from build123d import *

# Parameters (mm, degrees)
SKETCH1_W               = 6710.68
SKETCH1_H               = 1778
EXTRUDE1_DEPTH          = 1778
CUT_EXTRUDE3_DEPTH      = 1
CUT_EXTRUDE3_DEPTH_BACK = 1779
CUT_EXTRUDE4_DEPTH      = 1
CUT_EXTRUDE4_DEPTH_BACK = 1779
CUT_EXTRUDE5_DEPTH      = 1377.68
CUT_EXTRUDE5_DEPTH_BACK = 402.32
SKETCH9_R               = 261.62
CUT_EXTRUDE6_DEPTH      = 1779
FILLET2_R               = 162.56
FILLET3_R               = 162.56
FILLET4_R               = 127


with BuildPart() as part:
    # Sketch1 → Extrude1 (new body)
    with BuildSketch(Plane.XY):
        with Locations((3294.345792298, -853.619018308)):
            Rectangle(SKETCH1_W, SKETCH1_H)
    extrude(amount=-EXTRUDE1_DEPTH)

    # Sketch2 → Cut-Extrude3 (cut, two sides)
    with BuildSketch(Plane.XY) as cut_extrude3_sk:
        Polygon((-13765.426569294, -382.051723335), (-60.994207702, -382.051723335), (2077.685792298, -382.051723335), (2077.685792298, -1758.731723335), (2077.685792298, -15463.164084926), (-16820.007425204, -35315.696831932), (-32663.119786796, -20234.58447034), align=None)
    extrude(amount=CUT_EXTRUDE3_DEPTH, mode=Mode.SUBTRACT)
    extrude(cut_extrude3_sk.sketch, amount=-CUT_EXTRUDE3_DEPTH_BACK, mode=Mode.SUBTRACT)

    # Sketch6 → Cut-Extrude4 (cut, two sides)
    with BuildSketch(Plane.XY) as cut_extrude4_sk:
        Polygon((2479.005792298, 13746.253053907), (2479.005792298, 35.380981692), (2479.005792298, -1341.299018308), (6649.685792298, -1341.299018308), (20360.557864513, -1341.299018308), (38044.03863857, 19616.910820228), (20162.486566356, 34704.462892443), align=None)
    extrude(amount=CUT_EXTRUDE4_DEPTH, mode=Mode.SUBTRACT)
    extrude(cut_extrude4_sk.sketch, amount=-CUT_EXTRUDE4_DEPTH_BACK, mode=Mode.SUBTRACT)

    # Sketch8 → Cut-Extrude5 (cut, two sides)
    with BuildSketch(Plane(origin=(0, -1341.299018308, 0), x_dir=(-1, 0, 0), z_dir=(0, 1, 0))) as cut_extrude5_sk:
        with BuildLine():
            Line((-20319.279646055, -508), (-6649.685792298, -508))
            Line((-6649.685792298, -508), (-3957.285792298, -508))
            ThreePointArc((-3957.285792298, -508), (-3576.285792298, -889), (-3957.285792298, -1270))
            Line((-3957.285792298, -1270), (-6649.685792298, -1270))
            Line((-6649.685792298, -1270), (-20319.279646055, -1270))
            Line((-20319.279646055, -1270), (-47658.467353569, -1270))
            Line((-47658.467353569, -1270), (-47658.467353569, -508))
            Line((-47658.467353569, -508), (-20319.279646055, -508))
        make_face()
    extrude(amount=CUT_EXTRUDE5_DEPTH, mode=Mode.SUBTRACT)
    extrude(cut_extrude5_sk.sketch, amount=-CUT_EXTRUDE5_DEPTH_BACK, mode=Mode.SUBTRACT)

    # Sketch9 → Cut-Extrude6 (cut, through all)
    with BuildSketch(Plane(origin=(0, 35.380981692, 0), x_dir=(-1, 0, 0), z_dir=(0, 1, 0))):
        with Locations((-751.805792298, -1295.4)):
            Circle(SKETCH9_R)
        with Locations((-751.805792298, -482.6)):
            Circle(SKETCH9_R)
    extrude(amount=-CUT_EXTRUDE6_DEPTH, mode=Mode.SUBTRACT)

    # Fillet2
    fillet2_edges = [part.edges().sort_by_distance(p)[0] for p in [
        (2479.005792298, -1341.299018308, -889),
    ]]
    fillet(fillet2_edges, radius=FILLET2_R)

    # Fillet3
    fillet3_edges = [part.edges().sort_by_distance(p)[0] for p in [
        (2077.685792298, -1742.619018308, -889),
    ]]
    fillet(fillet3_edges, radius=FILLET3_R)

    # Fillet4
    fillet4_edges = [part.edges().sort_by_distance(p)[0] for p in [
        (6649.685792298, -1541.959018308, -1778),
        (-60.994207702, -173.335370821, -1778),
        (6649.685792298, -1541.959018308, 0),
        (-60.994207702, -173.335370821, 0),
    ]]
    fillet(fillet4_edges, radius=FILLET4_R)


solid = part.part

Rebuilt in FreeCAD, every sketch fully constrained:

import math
import FreeCAD as App
import Part
import Sketcher

V = App.Vector
Q = App.Units.Quantity


def edges_at(feature, points):
    """Names of the edges that pass closest to the given points."""
    edges = feature.Shape.Edges
    near = lambda p: min(range(len(edges)), key=lambda i: edges[i].distToShape(Part.Vertex(*p))[0])
    return sorted({f"Edge{near(p) + 1}" for p in points})

doc = App.newDocument("Part")
body = doc.addObject("PartDesign::Body", "Body")

# Sketch on XY plane
sketch1 = doc.addObject("Sketcher::SketchObject", "Sketch")
body.addObject(sketch1)
sketch1.AttachmentSupport = (doc.XY_Plane, [""])
sketch1.MapMode = "FlatFace"
sketch1.addGeometry([
    Part.LineSegment(V(-60.994208, 35.380982, 0), V(-60.994208, -1742.619018, 0)),
    Part.LineSegment(V(-60.994208, -1742.619018, 0), V(6649.685792, -1742.619018, 0)),
    Part.LineSegment(V(6649.685792, -1742.619018, 0), V(6649.685792, 35.380982, 0)),
    Part.LineSegment(V(6649.685792, 35.380982, 0), V(-60.994208, 35.380982, 0)),
], False)
sketch1.addConstraint([
    Sketcher.Constraint("Coincident", 0, 2, 1, 1),
    Sketcher.Constraint("Coincident", 1, 2, 2, 1),
    Sketcher.Constraint("Coincident", 2, 2, 3, 1),
    Sketcher.Constraint("Coincident", 3, 2, 0, 1),
    Sketcher.Constraint("Vertical", 0),
    Sketcher.Constraint("Horizontal", 1),
    Sketcher.Constraint("Vertical", 2),
    Sketcher.Constraint("Horizontal", 3),
    Sketcher.Constraint("DistanceY", 0, 2, 0, 1, Q("70 in")),
    Sketcher.Constraint("DistanceX", 1, 1, 1, 2, Q("264.2 in")),
    Sketcher.Constraint("DistanceY", 0, 2, -1, 1, 1742.619018),
    Sketcher.Constraint("DistanceX", 0, 2, -1, 1, 60.994208),
])
pad1 = doc.addObject("PartDesign::Pad", "Pad")
body.addObject(pad1)
pad1.Profile = sketch1
pad1.Length = Q("70 in")
pad1.Reversed = True

# Sketch on XY plane
sketch2 = doc.addObject("Sketcher::SketchObject", "Sketch001")
body.addObject(sketch2)
sketch2.AttachmentSupport = (doc.XY_Plane, [""])
sketch2.MapMode = "FlatFace"
sketch2.addGeometry([
    Part.LineSegment(V(2077.685792, -382.051723, 0), V(-13765.426569, -382.051723, 0)),  # 0
    Part.LineSegment(V(-13765.426569, -382.051723, 0), V(-32663.119787, -20234.58447, 0)),  # 1
    Part.LineSegment(V(-32663.119787, -20234.58447, 0), V(-16820.007425, -35315.696832, 0)),  # 2
    Part.LineSegment(V(-16820.007425, -35315.696832, 0), V(2077.685792, -15463.164085, 0)),  # 3
    Part.LineSegment(V(2077.685792, -15463.164085, 0), V(2077.685792, -382.051723, 0)),  # 4
], False)
sketch2.addConstraint([
    Sketcher.Constraint("Coincident", 0, 2, 1, 1),
    Sketcher.Constraint("Coincident", 1, 2, 2, 1),
    Sketcher.Constraint("Coincident", 2, 2, 3, 1),
    Sketcher.Constraint("Coincident", 3, 2, 4, 1),
    Sketcher.Constraint("Coincident", 4, 2, 0, 1),
    Sketcher.Constraint("Horizontal", 0),
    Sketcher.Constraint("Vertical", 4),
    Sketcher.Constraint("Perpendicular", 1, 2),
    Sketcher.Constraint("Perpendicular", 2, 3),
    Sketcher.Constraint("Equal", 1, 3),
    Sketcher.Constraint("DistanceX", 0, 2, 0, 1, 15843.112362),
    Sketcher.Constraint("DistanceY", 4, 1, 4, 2, 15081.112362),
    Sketcher.Constraint("DistanceX", 0, 2, -1, 1, 13765.426569),
    Sketcher.Constraint("DistanceY", 1, 2, -1, 1, 20234.58447),
    Sketcher.Constraint("DistanceY", 2, 2, 0, 2, 34933.645109),
])
pocket1 = doc.addObject("PartDesign::Pocket", "Pocket")
body.addObject(pocket1)
pocket1.Profile = sketch2
pocket1.Type = "ThroughAll"
pocket1.Midplane = True

# Sketch on XY plane
sketch3 = doc.addObject("Sketcher::SketchObject", "Sketch002")
body.addObject(sketch3)
sketch3.AttachmentSupport = (doc.XY_Plane, [""])
sketch3.MapMode = "FlatFace"
sketch3.addGeometry([
    Part.LineSegment(V(2479.005792, 13746.253054, 0), V(2479.005792, -1341.299018, 0)),  # 0
    Part.LineSegment(V(2479.005792, -1341.299018, 0), V(20360.557865, -1341.299018, 0)),  # 1
    Part.LineSegment(V(20360.557865, -1341.299018, 0), V(38044.038639, 19616.91082, 0)),  # 2
    Part.LineSegment(V(38044.038639, 19616.91082, 0), V(20162.486566, 34704.462892, 0)),  # 3
    Part.LineSegment(V(20162.486566, 34704.462892, 0), V(2479.005792, 13746.253054, 0)),  # 4
], False)
sketch3.addConstraint([
    Sketcher.Constraint("Coincident", 0, 2, 1, 1),
    Sketcher.Constraint("Coincident", 1, 2, 2, 1),
    Sketcher.Constraint("Coincident", 2, 2, 3, 1),
    Sketcher.Constraint("Coincident", 3, 2, 4, 1),
    Sketcher.Constraint("Coincident", 4, 2, 0, 1),
    Sketcher.Constraint("Vertical", 0),
    Sketcher.Constraint("Horizontal", 1),
    Sketcher.Constraint("Perpendicular", 2, 3),
    Sketcher.Constraint("Perpendicular", 3, 4),
    Sketcher.Constraint("Equal", 2, 4),
    Sketcher.Constraint("DistanceX", 3, 2, 1, 2, 198.071298),
    Sketcher.Constraint("DistanceX", 1, 1, 1, 2, 17881.552072),
    Sketcher.Constraint("DistanceY", 0, 2, 0, 1, 15087.552072),
    Sketcher.Constraint("DistanceY", 0, 2, -1, 1, 1341.299018),
    Sketcher.Constraint("DistanceX", -1, 1, 2, 2, 38044.038639),
])
pocket2 = doc.addObject("PartDesign::Pocket", "Pocket001")
body.addObject(pocket2)
pocket2.Profile = sketch3
pocket2.Type = "ThroughAll"
pocket2.Midplane = True

# Sketch on XZ plane
sketch4 = doc.addObject("Sketcher::SketchObject", "Sketch003")
body.addObject(sketch4)
sketch4.AttachmentSupport = (doc.XZ_Plane, [""])
sketch4.MapMode = "FlatFace"
sketch4.AttachmentOffset = App.Placement(V(0, 0, 1341.299018), App.Rotation())
sketch4.addGeometry([
    Part.ArcOfCircle(Part.Circle(V(3957.285792, -889, 0), V(0, 0, 1), 381), math.radians(90), math.radians(270)),
    Part.LineSegment(V(3957.285792, -508, 0), V(47658.467354, -508, 0)),
    Part.LineSegment(V(47658.467354, -508, 0), V(47658.467354, -1270, 0)),
    Part.LineSegment(V(47658.467354, -1270, 0), V(3957.285792, -1270, 0)),
], False)
sketch4.addConstraint([
    Sketcher.Constraint("Tangent", 0, 1, 1, 1),
    Sketcher.Constraint("Coincident", 1, 2, 2, 1),
    Sketcher.Constraint("Coincident", 2, 2, 3, 1),
    Sketcher.Constraint("Tangent", 3, 2, 0, 2),
    Sketcher.Constraint("Horizontal", 1),
    Sketcher.Constraint("Vertical", 2),
    Sketcher.Constraint("Horizontal", 3),
    Sketcher.Constraint("Radius", 0, Q("15 in")),
    Sketcher.Constraint("DistanceY", 0, 3, -1, 1, Q("35 in")),
    Sketcher.Constraint("DistanceX", 1, 1, 1, 2, 43701.181561),
    Sketcher.Constraint("DistanceX", -1, 1, 0, 3, 3957.285792),
])
pocket3 = doc.addObject("PartDesign::Pocket", "Pocket002")
body.addObject(pocket3)
pocket3.Profile = sketch4
pocket3.Type = "ThroughAll"
pocket3.Midplane = True

# Sketch on XZ plane
sketch5 = doc.addObject("Sketcher::SketchObject", "Sketch004")
body.addObject(sketch5)
sketch5.AttachmentSupport = (doc.XZ_Plane, [""])
sketch5.MapMode = "FlatFace"
sketch5.AttachmentOffset = App.Placement(V(0, 0, -35.380982), App.Rotation())
sketch5.addGeometry([
    Part.Circle(V(751.805792, -1295.4, 0), V(0, 0, 1), 261.62),
    Part.Circle(V(751.805792, -482.6, 0), V(0, 0, 1), 261.62),
], False)
sketch5.addConstraint([
    Sketcher.Constraint("Equal", 0, 1),
    Sketcher.Constraint("Vertical", 0, 3, 1, 3),
    Sketcher.Constraint("Diameter", 0, Q("20.6 in")),
    Sketcher.Constraint("DistanceY", 0, 3, -1, 1, Q("51 in")),
    Sketcher.Constraint("DistanceY", 1, 3, -1, 1, Q("19 in")),
    Sketcher.Constraint("DistanceX", -1, 1, 0, 3, 751.805792),
])
pocket4 = doc.addObject("PartDesign::Pocket", "Pocket003")
body.addObject(pocket4)
pocket4.Profile = sketch5
pocket4.Type = "ThroughAll"
pocket4.Reversed = True
doc.recompute()

fillet = doc.addObject("PartDesign::Fillet", "Fillet")
body.addObject(fillet)
fillet.Base = (pocket4, edges_at(pocket4, [(2479.006, -1341.299, -889)]))
fillet.Radius = Q("6.4 in")
doc.recompute()

fillet2 = doc.addObject("PartDesign::Fillet", "Fillet001")
body.addObject(fillet2)
fillet2.Base = (fillet, edges_at(fillet, [(2077.686, -1742.619, -889)]))
fillet2.Radius = Q("6.4 in")
doc.recompute()

fillet3 = doc.addObject("PartDesign::Fillet", "Fillet002")
body.addObject(fillet3)
fillet3.Base = (fillet2, edges_at(fillet2, [
    (6649.686, -1541.959, -1778),
    (-60.994, -173.335, -1778),
    (6649.686, -1541.959, 0),
    (-60.994, -173.335, 0),
]))
fillet3.Radius = Q("5 in")

doc.recompute()
